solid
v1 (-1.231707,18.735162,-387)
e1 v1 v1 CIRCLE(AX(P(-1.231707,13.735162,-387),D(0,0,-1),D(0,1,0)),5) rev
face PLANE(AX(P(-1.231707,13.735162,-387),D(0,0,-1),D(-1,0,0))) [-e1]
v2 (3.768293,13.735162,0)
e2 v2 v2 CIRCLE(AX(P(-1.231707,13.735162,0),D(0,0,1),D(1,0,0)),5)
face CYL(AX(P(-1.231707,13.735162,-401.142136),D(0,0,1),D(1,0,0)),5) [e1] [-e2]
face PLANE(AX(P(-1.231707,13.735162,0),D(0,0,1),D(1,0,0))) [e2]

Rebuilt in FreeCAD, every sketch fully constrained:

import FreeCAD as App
import Part
import Sketcher
from FreeCAD import Vector

doc = App.newDocument("Part")
body = doc.addObject("PartDesign::Body", "Body")

sketch1 = doc.addObject("Sketcher::SketchObject", "Sketch")
body.addObject(sketch1)
sketch1.AttachmentSupport = (doc.XY_Plane, [""])
sketch1.MapMode = "FlatFace"
sketch1.addGeometry(Part.Circle(Vector(-1, 14, 0), Vector(0, 0, 1), 5), False)
sketch1.addConstraint([
    Sketcher.Constraint("Diameter", 0, 10.0),
    Sketcher.Constraint("DistanceY", -1, 1, 0, 3, 13.735162),
    Sketcher.Constraint("DistanceX", 0, 3, -1, 1, 1.231707),
])
pad1 = doc.addObject("PartDesign::Pad", "Pad")
body.addObject(pad1)
pad1.Profile = sketch1
pad1.Length = 387
pad1.Reversed = True

doc.recompute()
